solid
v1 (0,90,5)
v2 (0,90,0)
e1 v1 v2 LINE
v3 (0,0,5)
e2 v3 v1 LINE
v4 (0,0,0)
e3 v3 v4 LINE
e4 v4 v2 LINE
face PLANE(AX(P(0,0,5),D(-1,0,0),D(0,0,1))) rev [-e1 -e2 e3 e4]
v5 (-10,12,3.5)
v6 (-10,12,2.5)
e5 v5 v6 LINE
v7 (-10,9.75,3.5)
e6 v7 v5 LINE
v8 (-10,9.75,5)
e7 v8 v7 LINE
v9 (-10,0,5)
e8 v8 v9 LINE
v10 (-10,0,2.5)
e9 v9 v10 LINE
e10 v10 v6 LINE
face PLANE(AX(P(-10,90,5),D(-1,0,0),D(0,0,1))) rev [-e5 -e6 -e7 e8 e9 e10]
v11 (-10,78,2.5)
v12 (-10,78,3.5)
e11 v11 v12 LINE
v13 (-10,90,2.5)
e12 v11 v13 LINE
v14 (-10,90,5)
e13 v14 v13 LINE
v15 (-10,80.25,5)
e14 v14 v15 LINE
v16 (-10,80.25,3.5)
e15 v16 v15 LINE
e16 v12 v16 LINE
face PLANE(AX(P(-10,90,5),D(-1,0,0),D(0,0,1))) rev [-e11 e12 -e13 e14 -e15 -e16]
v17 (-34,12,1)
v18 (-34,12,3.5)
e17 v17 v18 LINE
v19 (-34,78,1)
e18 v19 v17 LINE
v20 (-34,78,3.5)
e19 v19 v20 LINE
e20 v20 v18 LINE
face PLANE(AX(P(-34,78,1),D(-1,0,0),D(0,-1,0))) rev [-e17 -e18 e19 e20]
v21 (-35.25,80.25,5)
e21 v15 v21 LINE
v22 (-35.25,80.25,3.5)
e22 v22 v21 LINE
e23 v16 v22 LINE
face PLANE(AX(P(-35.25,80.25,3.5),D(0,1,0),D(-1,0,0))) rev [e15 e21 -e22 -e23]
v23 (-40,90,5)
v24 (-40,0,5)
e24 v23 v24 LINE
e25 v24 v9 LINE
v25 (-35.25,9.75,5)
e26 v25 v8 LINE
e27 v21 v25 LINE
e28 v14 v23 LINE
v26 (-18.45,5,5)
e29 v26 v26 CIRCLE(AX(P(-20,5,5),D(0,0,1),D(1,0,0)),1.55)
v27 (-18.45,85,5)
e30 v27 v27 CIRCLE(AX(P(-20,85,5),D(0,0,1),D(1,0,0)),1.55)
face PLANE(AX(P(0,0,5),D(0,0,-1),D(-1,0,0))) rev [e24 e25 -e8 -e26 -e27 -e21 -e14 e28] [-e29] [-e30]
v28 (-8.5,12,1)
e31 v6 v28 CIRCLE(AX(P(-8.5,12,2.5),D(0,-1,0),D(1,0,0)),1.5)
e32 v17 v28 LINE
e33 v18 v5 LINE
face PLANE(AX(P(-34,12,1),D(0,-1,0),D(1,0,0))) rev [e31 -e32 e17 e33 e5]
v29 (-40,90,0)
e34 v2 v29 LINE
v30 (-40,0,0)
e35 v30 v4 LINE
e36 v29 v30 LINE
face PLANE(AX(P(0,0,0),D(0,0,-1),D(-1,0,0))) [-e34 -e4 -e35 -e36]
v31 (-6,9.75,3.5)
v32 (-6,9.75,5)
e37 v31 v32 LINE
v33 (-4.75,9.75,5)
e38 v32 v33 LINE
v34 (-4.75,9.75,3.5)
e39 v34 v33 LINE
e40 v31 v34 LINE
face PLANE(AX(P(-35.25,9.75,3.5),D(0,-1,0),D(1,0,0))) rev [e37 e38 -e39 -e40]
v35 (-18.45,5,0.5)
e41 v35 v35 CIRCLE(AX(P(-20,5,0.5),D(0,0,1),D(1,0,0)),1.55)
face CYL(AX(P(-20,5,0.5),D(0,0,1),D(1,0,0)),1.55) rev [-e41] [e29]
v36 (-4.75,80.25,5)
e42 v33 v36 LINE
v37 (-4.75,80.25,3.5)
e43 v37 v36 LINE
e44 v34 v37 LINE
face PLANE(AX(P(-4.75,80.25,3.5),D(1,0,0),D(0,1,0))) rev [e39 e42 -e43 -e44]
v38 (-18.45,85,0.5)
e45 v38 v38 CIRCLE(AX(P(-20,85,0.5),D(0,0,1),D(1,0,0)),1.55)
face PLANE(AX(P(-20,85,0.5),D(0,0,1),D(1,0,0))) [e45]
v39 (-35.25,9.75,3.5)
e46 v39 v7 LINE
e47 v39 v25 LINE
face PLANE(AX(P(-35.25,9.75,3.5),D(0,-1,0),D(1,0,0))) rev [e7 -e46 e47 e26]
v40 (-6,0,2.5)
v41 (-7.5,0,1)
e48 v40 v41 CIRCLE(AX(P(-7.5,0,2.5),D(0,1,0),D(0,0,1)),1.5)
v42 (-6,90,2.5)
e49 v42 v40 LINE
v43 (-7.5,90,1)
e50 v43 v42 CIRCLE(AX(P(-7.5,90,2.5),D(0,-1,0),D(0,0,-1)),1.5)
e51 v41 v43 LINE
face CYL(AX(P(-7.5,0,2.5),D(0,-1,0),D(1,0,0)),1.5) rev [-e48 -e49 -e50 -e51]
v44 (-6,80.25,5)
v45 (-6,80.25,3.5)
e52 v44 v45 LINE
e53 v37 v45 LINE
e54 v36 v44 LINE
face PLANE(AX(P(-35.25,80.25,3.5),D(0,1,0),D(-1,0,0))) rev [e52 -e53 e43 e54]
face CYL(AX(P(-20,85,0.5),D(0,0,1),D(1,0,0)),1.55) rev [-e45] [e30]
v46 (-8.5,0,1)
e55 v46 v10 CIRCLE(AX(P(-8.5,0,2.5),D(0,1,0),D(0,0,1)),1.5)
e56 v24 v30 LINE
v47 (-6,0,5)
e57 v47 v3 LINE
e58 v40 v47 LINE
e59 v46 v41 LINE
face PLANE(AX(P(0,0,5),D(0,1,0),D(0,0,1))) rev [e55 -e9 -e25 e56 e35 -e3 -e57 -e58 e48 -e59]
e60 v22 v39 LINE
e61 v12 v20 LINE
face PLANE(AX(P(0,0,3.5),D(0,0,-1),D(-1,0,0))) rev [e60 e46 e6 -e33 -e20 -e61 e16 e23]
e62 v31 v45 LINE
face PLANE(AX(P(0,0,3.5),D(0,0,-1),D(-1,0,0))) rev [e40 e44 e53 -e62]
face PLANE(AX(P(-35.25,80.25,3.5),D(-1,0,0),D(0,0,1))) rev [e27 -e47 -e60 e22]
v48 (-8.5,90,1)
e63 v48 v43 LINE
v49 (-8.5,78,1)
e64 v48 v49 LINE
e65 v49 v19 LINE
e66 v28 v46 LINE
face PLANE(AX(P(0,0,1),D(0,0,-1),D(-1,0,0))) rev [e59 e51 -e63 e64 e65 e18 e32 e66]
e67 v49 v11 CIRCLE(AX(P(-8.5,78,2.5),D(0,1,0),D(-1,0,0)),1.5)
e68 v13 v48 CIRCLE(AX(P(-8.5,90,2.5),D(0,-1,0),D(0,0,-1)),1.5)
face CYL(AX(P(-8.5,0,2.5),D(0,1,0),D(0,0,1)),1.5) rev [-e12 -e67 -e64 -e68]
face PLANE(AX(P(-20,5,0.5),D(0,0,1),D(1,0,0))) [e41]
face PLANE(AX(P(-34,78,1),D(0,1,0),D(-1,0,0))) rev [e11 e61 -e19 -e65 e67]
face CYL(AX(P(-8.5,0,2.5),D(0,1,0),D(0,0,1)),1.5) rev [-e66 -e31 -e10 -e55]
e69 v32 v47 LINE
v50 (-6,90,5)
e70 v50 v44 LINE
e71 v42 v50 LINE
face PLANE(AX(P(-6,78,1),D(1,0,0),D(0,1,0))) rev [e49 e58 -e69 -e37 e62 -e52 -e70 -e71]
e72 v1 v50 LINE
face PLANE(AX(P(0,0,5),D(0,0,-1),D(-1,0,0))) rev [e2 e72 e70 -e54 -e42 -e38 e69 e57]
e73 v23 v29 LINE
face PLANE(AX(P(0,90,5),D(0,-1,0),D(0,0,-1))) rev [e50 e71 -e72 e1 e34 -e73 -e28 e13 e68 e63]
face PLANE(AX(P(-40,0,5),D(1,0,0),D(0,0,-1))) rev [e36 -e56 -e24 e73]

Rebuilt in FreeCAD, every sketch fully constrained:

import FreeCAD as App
import Part
import Sketcher
from FreeCAD import Vector
Q = App.Units.Quantity


def edges_at(feature, points):
    """Names of the edges that pass closest to the given points."""
    edges = feature.Shape.Edges
    near = lambda p: min(range(len(edges)), key=lambda i: edges[i].distToShape(Part.Vertex(*p))[0])
    return sorted({f"Edge{near(p) + 1}" for p in points})

doc = App.newDocument("Part")
body = doc.addObject("PartDesign::Body", "Body")

sketch1 = body.newObject("Sketcher::SketchObject", "Sketch")
sketch1.AttachmentSupport = (doc.getObject("XY_Plane"), [""])
sketch1.MapMode = "FlatFace"
sketch1.addGeometry([
    Part.LineSegment(Vector(-40, 0, 0), Vector(0, 0, 0)),
    Part.LineSegment(Vector(0, 0, 0), Vector(0, 90, 0)),
    Part.LineSegment(Vector(0, 90, 0), Vector(-40, 90, 0)),
    Part.LineSegment(Vector(-40, 90, 0), Vector(-40, 0, 0)),
], False)
sketch1.addConstraint([
    Sketcher.Constraint("Coincident", 0, 2, 1, 1),
    Sketcher.Constraint("Coincident", 1, 2, 2, 1),
    Sketcher.Constraint("Coincident", 2, 2, 3, 1),
    Sketcher.Constraint("Coincident", 3, 2, 0, 1),
    Sketcher.Constraint("Horizontal", 0),
    Sketcher.Constraint("Vertical", 1),
    Sketcher.Constraint("Horizontal", 2),
    Sketcher.Constraint("Vertical", 3),
    Sketcher.Constraint("Coincident", 0, 2, -1, 1),
    Sketcher.Constraint("DistanceX", 0, 1, 0, 2, Q("40 mm")),
    Sketcher.Constraint("DistanceY", 1, 1, 1, 2, Q("90 mm")),
])
pad1 = body.newObject("PartDesign::Pad", "Pad")
pad1.Profile = sketch1
pad1.Length = 5

sketch2 = body.newObject("Sketcher::SketchObject", "Sketch001")
sketch2.AttachmentSupport = (doc.getObject("XY_Plane"), [""])
sketch2.MapMode = "FlatFace"
sketch2.AttachmentOffset = App.Placement(Vector(0, 0, 5), App.Rotation())
sketch2.addGeometry([
    Part.LineSegment(Vector(-35, 80, 0), Vector(-35, 10, 0)),
    Part.LineSegment(Vector(-35, 10, 0), Vector(-5, 10, 0)),
    Part.LineSegment(Vector(-5, 10, 0), Vector(-5, 80, 0)),
    Part.LineSegment(Vector(-5, 80, 0), Vector(-35, 80, 0)),
], False)
sketch2.addConstraint([
    Sketcher.Constraint("Coincident", 0, 2, 1, 1),
    Sketcher.Constraint("Coincident", 1, 2, 2, 1),
    Sketcher.Constraint("Coincident", 2, 2, 3, 1),
    Sketcher.Constraint("Coincident", 3, 2, 0, 1),
    Sketcher.Constraint("Vertical", 0),
    Sketcher.Constraint("Horizontal", 1),
    Sketcher.Constraint("Vertical", 2),
    Sketcher.Constraint("Horizontal", 3),
    Sketcher.Constraint("DistanceX", 1, 1, 1, 2, Q("30.5 mm")),
    Sketcher.Constraint("DistanceY", 0, 2, 0, 1, Q("70.5 mm")),
    Sketcher.Constraint("DistanceX", 0, 2, -1, 1, Q("35.25 mm")),
    Sketcher.Constraint("DistanceY", -1, 1, 0, 2, Q("9.75 mm")),
])
pocket1 = body.newObject("PartDesign::Pocket", "Pocket")
pocket1.Profile = sketch2
pocket1.Length = 1.5

sketch3 = body.newObject("Sketcher::SketchObject", "Sketch002")
sketch3.AttachmentSupport = (doc.getObject("XY_Plane"), [""])
sketch3.MapMode = "FlatFace"
sketch3.AttachmentOffset = App.Placement(Vector(0, 0, 3.5), App.Rotation())
sketch3.addGeometry([
    Part.LineSegment(Vector(-34, 78, 0), Vector(-34, 12, 0)),
    Part.LineSegment(Vector(-34, 12, 0), Vector(-6, 12, 0)),
    Part.LineSegment(Vector(-6, 12, 0), Vector(-6, 78, 0)),
    Part.LineSegment(Vector(-6, 78, 0), Vector(-34, 78, 0)),
], False)
sketch3.addConstraint([
    Sketcher.Constraint("Coincident", 0, 2, 1, 1),
    Sketcher.Constraint("Coincident", 1, 2, 2, 1),
    Sketcher.Constraint("Coincident", 2, 2, 3, 1),
    Sketcher.Constraint("Coincident", 3, 2, 0, 1),
    Sketcher.Constraint("Vertical", 0),
    Sketcher.Constraint("Horizontal", 1),
    Sketcher.Constraint("Vertical", 2),
    Sketcher.Constraint("Horizontal", 3),
    Sketcher.Constraint("DistanceX", 1, 1, 1, 2, Q("28 mm")),
    Sketcher.Constraint("DistanceY", 0, 2, 0, 1, Q("66 mm")),
    Sketcher.Constraint("DistanceX", 0, 2, -1, 1, Q("34 mm")),
    Sketcher.Constraint("DistanceY", -1, 1, 0, 2, Q("12 mm")),
])
pocket2 = body.newObject("PartDesign::Pocket", "Pocket001")
pocket2.Profile = sketch3
pocket2.Length = 2.5

sketch4 = body.newObject("Sketcher::SketchObject", "Sketch003")
sketch4.AttachmentSupport = (doc.getObject("XZ_Plane"), [""])
sketch4.MapMode = "FlatFace"
sketch4.addGeometry([
    Part.LineSegment(Vector(-10, 5, 0), Vector(-10, 1, 0)),
    Part.LineSegment(Vector(-10, 1, 0), Vector(-6, 1, 0)),
    Part.LineSegment(Vector(-6, 1, 0), Vector(-6, 5, 0)),
    Part.LineSegment(Vector(-6, 5, 0), Vector(-10, 5, 0)),
], False)
sketch4.addConstraint([
    Sketcher.Constraint("Coincident", 0, 2, 1, 1),
    Sketcher.Constraint("Coincident", 1, 2, 2, 1),
    Sketcher.Constraint("Coincident", 2, 2, 3, 1),
    Sketcher.Constraint("Coincident", 3, 2, 0, 1),
    Sketcher.Constraint("Vertical", 0),
    Sketcher.Constraint("Horizontal", 1),
    Sketcher.Constraint("Vertical", 2),
    Sketcher.Constraint("Horizontal", 3),
    Sketcher.Constraint("Equal", 3, 0),
    Sketcher.Constraint("DistanceX", 1, 1, 1, 2, Q("4 mm")),
    Sketcher.Constraint("DistanceX", 0, 2, -1, 1, Q("10 mm")),
    Sketcher.Constraint("DistanceY", -1, 1, 0, 2, Q("1 mm")),
])
pocket3 = body.newObject("PartDesign::Pocket", "Pocket002")
pocket3.Profile = sketch4
pocket3.Type = "ThroughAll"
doc.recompute()

fillet = body.newObject("PartDesign::Fillet", "Fillet")
fillet.Base = (pocket3, edges_at(pocket3, [(-6, 45, 1), (-10, 84, 1), (-10, 6, 1)]))
fillet.Radius = 1.5

sketch5 = body.newObject("Sketcher::SketchObject", "Sketch004")
sketch5.AttachmentSupport = (doc.getObject("XY_Plane"), [""])
sketch5.MapMode = "FlatFace"
sketch5.AttachmentOffset = App.Placement(Vector(0, 0, 5), App.Rotation())
sketch5.addGeometry(Part.Circle(Vector(-20, 85, 0), Vector(0, 0, 1), 1.6), False)
sketch5.addConstraint([
    Sketcher.Constraint("Diameter", 0, Q("3.1 mm")),
    Sketcher.Constraint("DistanceX", 0, 3, -1, 1, Q("20 mm")),
    Sketcher.Constraint("DistanceY", -1, 1, 0, 3, Q("85 mm")),
])
pocket4 = body.newObject("PartDesign::Pocket", "Pocket003")
pocket4.Profile = sketch5
pocket4.Length = 4.5

sketch6 = body.newObject("Sketcher::SketchObject", "Sketch005")
sketch6.AttachmentSupport = (doc.getObject("XY_Plane"), [""])
sketch6.MapMode = "FlatFace"
sketch6.AttachmentOffset = App.Placement(Vector(0, 0, 5), App.Rotation())
sketch6.addGeometry(Part.Circle(Vector(-20, 5, 0), Vector(0, 0, 1), 1.6), False)
sketch6.addConstraint([
    Sketcher.Constraint("Diameter", 0, Q("3.1 mm")),
    Sketcher.Constraint("DistanceX", 0, 3, -1, 1, Q("20 mm")),
    Sketcher.Constraint("DistanceY", -1, 1, 0, 3, Q("5 mm")),
])
pocket5 = body.newObject("PartDesign::Pocket", "Pocket004")
pocket5.Profile = sketch6
pocket5.Length = 4.5

doc.recompute()
